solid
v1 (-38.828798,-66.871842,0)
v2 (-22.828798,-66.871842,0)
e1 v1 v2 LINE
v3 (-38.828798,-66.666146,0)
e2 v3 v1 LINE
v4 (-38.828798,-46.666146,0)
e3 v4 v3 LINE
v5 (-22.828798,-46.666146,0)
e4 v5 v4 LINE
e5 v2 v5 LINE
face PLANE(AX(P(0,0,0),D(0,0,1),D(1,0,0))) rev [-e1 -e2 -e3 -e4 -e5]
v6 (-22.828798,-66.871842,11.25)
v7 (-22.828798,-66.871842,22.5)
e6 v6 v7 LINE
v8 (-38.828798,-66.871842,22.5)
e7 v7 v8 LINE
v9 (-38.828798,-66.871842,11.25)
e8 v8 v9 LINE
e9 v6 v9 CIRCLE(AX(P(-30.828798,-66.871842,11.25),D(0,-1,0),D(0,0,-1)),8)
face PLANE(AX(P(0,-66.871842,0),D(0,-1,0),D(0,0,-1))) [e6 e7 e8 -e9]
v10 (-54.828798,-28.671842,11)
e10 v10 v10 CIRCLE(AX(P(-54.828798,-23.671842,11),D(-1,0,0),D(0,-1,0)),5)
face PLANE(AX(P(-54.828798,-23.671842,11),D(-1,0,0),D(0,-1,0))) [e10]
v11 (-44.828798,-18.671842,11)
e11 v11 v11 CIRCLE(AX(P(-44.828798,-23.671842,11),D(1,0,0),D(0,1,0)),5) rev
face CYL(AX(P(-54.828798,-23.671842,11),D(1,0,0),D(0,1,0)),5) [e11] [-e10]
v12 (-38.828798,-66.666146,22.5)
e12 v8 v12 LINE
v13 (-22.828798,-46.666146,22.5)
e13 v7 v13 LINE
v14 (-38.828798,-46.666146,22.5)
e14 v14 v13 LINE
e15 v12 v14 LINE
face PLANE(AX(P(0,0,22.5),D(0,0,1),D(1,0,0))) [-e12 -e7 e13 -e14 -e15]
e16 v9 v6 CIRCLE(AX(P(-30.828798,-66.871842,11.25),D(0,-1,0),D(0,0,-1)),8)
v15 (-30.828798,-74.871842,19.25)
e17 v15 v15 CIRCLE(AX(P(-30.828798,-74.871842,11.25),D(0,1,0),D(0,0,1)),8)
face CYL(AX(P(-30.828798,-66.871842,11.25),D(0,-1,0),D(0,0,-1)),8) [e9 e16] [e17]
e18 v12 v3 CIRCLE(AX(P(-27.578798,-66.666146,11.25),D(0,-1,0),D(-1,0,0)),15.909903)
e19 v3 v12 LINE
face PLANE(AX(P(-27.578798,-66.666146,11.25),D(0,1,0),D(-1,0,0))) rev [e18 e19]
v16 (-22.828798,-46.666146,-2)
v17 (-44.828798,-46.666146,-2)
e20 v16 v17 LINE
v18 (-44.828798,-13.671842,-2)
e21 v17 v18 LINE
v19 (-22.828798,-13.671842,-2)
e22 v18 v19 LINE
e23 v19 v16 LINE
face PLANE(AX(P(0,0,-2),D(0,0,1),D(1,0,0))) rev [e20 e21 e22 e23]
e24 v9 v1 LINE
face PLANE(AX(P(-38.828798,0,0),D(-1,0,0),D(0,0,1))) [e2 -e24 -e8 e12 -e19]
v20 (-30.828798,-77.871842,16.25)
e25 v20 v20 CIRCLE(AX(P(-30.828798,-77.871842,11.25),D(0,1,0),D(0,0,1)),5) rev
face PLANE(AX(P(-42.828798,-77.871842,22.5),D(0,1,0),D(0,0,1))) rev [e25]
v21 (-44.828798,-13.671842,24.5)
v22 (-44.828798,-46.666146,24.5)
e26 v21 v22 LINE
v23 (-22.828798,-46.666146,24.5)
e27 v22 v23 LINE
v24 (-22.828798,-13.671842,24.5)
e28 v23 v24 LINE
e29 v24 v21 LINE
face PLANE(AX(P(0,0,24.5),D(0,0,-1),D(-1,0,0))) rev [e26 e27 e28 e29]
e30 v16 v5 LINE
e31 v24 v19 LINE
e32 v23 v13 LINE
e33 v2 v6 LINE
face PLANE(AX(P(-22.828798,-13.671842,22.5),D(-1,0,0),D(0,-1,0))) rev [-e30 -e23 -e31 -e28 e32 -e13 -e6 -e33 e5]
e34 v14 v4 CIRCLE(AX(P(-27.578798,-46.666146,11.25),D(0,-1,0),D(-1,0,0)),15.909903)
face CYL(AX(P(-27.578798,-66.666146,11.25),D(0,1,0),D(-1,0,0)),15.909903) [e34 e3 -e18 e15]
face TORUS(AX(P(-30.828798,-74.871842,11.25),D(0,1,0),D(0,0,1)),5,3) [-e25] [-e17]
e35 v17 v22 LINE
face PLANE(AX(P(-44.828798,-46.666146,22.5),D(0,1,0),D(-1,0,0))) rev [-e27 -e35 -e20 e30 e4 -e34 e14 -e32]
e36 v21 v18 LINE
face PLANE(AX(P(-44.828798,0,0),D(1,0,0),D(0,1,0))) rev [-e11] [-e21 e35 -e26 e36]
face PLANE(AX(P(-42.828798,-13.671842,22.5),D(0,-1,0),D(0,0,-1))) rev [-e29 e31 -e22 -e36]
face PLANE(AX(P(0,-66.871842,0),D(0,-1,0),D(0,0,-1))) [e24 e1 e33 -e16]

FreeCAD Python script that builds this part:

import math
import FreeCAD as App
import Part
import Sketcher

V = App.Vector


def edges_at(feature, points):
    """Names of the edges that pass closest to the given points."""
    edges = feature.Shape.Edges
    near = lambda p: min(range(len(edges)), key=lambda i: edges[i].distToShape(Part.Vertex(*p))[0])
    return sorted({f"Edge{near(p) + 1}" for p in points})

doc = App.newDocument("Part")
params = doc.addObject("Spreadsheet::Sheet", "Params")
for row, (alias, value) in enumerate([
    ("sketch1_width", "20 mm"),
    ("sketch1_height", "64.2 mm"),
    ("pad1_length", "22.5 mm"),
    ("sketch2_height", "22.5 mm"),
    ("pad2_length", "2 mm"),
    ("sketch3_width", "22 mm"),
    ("pad3_length", "2 mm"),
    ("sketch4_width", "22 mm"),
    ("pad4_length", "2 mm"),
    ("sketch5_height", "22.5 mm"),
    ("pocket1_length", "4 mm"),
    ("sketch6_height", "22.5 mm"),
    ("pad5_length", "20 mm"),
    ("sketch7_radius", "8 mm"),
    ("sketch7_height", "11.25 mm"),
    ("pocket2_length", "11 mm"),
    ("fillet_radius", "3 mm"),
    ("sketch8_diameter", "10 mm"),
    ("pad6_length", "10 mm"),
], start=1):
    params.set(f"A{row}", alias)
    params.set(f"B{row}", "=" + value)
    params.setAlias(f"B{row}", alias)

body = doc.addObject("PartDesign::Body", "Body")

# Sketch on XY plane
sketch1 = doc.addObject("Sketcher::SketchObject", "Sketch")
body.addObject(sketch1)
sketch1.AttachmentSupport = (doc.XY_Plane, [""])
sketch1.MapMode = "FlatFace"
sketch1.addGeometry([
    Part.LineSegment(V(-43, -14, 0), V(-43, -78, 0)),
    Part.LineSegment(V(-43, -78, 0), V(-23, -78, 0)),
    Part.LineSegment(V(-23, -78, 0), V(-23, -14, 0)),
    Part.LineSegment(V(-23, -14, 0), V(-43, -14, 0)),
], False)
sketch1.addConstraint([
    Sketcher.Constraint("Coincident", 0, 2, 1, 1),
    Sketcher.Constraint("Coincident", 1, 2, 2, 1),
    Sketcher.Constraint("Coincident", 2, 2, 3, 1),
    Sketcher.Constraint("Coincident", 3, 2, 0, 1),
    Sketcher.Constraint("Vertical", 0),
    Sketcher.Constraint("Horizontal", 1),
    Sketcher.Constraint("Vertical", 2),
    Sketcher.Constraint("Horizontal", 3),
    Sketcher.Constraint("DistanceX", 1, 1, 1, 2, 20.0),
    Sketcher.Constraint("DistanceY", 0, 2, 0, 1, 64.2),
    Sketcher.Constraint("DistanceX", 0, 2, -1, 1, 42.828798),
    Sketcher.Constraint("DistanceY", 0, 2, -1, 1, 77.871842),
])
sketch1.setExpression("Constraints[8]", "Params.sketch1_width")
sketch1.setExpression("Constraints[9]", "Params.sketch1_height")
pad1 = doc.addObject("PartDesign::Pad", "Pad")
body.addObject(pad1)
pad1.Profile = sketch1
pad1.setExpression("Length", "Params.pad1_length")

# Sketch on YZ plane
sketch2 = doc.addObject("Sketcher::SketchObject", "Sketch001")
body.addObject(sketch2)
sketch2.AttachmentSupport = (doc.YZ_Plane, [""])
sketch2.MapMode = "FlatFace"
sketch2.AttachmentOffset = App.Placement(V(0, 0, -42.828798), App.Rotation())
sketch2.addGeometry([
    Part.LineSegment(V(-14, 0, 0), V(-47, 0, 0)),
    Part.LineSegment(V(-47, 0, 0), V(-47, 22, 0)),
    Part.LineSegment(V(-47, 22, 0), V(-14, 22, 0)),
    Part.LineSegment(V(-14, 22, 0), V(-14, 0, 0)),
], False)
sketch2.addConstraint([
    Sketcher.Constraint("Coincident", 0, 2, 1, 1),
    Sketcher.Constraint("Coincident", 1, 2, 2, 1),
    Sketcher.Constraint("Coincident", 2, 2, 3, 1),
    Sketcher.Constraint("Coincident", 3, 2, 0, 1),
    Sketcher.Constraint("Horizontal", 0),
    Sketcher.Constraint("Vertical", 1),
    Sketcher.Constraint("Horizontal", 2),
    Sketcher.Constraint("Vertical", 3),
    Sketcher.Constraint("PointOnObject", 0, 2, -1),
    Sketcher.Constraint("DistanceY", 1, 1, 1, 2, 22.5),
    Sketcher.Constraint("DistanceX", 0, 2, 0, 1, 32.994304),
    Sketcher.Constraint("DistanceX", 2, 2, -1, 1, 13.671842),
])
sketch2.setExpression("Constraints[9]", "Params.sketch2_height")
pad2 = doc.addObject("PartDesign::Pad", "Pad001")
body.addObject(pad2)
pad2.Profile = sketch2
pad2.setExpression("Length", "Params.pad2_length")
pad2.Reversed = True

# Sketch on XY plane
sketch3 = doc.addObject("Sketcher::SketchObject", "Sketch002")
body.addObject(sketch3)
sketch3.AttachmentSupport = (doc.XY_Plane, [""])
sketch3.MapMode = "FlatFace"
sketch3.addGeometry([
    Part.LineSegment(V(-23, -14, 0), V(-23, -47, 0)),
    Part.LineSegment(V(-23, -47, 0), V(-45, -47, 0)),
    Part.LineSegment(V(-45, -47, 0), V(-45, -14, 0)),
    Part.LineSegment(V(-45, -14, 0), V(-23, -14, 0)),
], False)
sketch3.addConstraint([
    Sketcher.Constraint("Coincident", 0, 2, 1, 1),
    Sketcher.Constraint("Coincident", 1, 2, 2, 1),
    Sketcher.Constraint("Coincident", 2, 2, 3, 1),
    Sketcher.Constraint("Coincident", 3, 2, 0, 1),
    Sketcher.Constraint("Vertical", 0),
    Sketcher.Constraint("Horizontal", 1),
    Sketcher.Constraint("Vertical", 2),
    Sketcher.Constraint("Horizontal", 3),
    Sketcher.Constraint("DistanceX", 1, 2, 1, 1, 22.0),
    Sketcher.Constraint("DistanceX", 0, 2, -1, 1, 22.828798),
    Sketcher.Constraint("DistanceY", 0, 2, 0, 1, 32.994304),
    Sketcher.Constraint("DistanceY", 2, 2, -1, 1, 13.671842),
])
sketch3.setExpression("Constraints[8]", "Params.sketch3_width")
pad3 = doc.addObject("PartDesign::Pad", "Pad002")
body.addObject(pad3)
pad3.Profile = sketch3
pad3.setExpression("Length", "Params.pad3_length")
pad3.Reversed = True

# Sketch on XY plane
sketch4 = doc.addObject("Sketcher::SketchObject", "Sketch003")
body.addObject(sketch4)
sketch4.AttachmentSupport = (doc.XY_Plane, [""])
sketch4.MapMode = "FlatFace"
sketch4.AttachmentOffset = App.Placement(V(0, 0, 22.5), App.Rotation())
sketch4.addGeometry([
    Part.LineSegment(V(-45, -14, 0), V(-45, -47, 0)),
    Part.LineSegment(V(-45, -47, 0), V(-23, -47, 0)),
    Part.LineSegment(V(-23, -47, 0), V(-23, -14, 0)),
    Part.LineSegment(V(-23, -14, 0), V(-45, -14, 0)),
], False)
sketch4.addConstraint([
    Sketcher.Constraint("Coincident", 0, 2, 1, 1),
    Sketcher.Constraint("Coincident", 1, 2, 2, 1),
    Sketcher.Constraint("Coincident", 2, 2, 3, 1),
    Sketcher.Constraint("Coincident", 3, 2, 0, 1),
    Sketcher.Constraint("Vertical", 0),
    Sketcher.Constraint("Horizontal", 1),
    Sketcher.Constraint("Vertical", 2),
    Sketcher.Constraint("Horizontal", 3),
    Sketcher.Constraint("DistanceX", 1, 1, 1, 2, 22.0),
    Sketcher.Constraint("DistanceX", 0, 2, -1, 1, 44.828798),
    Sketcher.Constraint("DistanceY", 0, 2, 0, 1, 32.994304),
    Sketcher.Constraint("DistanceY", 2, 2, -1, 1, 13.671842),
])
sketch4.setExpression("Constraints[8]", "Params.sketch4_width")
pad4 = doc.addObject("PartDesign::Pad", "Pad003")
body.addObject(pad4)
pad4.Profile = sketch4
pad4.setExpression("Length", "Params.pad4_length")

# Sketch on YZ plane
sketch5 = doc.addObject("Sketcher::SketchObject", "Sketch004")
body.addObject(sketch5)
sketch5.AttachmentSupport = (doc.YZ_Plane, [""])
sketch5.MapMode = "FlatFace"
sketch5.AttachmentOffset = App.Placement(V(0, 0, -42.828798), App.Rotation())
sketch5.addGeometry([
    Part.LineSegment(V(-47, 0, 0), V(-78, 0, 0)),
    Part.LineSegment(V(-78, 0, 0), V(-78, 22, 0)),
    Part.LineSegment(V(-78, 22, 0), V(-47, 22, 0)),
    Part.LineSegment(V(-47, 22, 0), V(-47, 0, 0)),
], False)
sketch5.addConstraint([
    Sketcher.Constraint("Coincident", 0, 2, 1, 1),
    Sketcher.Constraint("Coincident", 1, 2, 2, 1),
    Sketcher.Constraint("Coincident", 2, 2, 3, 1),
    Sketcher.Constraint("Coincident", 3, 2, 0, 1),
    Sketcher.Constraint("Horizontal", 0),
    Sketcher.Constraint("Vertical", 1),
    Sketcher.Constraint("Horizontal", 2),
    Sketcher.Constraint("Vertical", 3),
    Sketcher.Constraint("PointOnObject", 0, 2, -1),
    Sketcher.Constraint("DistanceY", 1, 1, 1, 2, 22.5),
    Sketcher.Constraint("DistanceX", 0, 2, 0, 1, 31.205696),
    Sketcher.Constraint("DistanceX", 0, 2, -1, 1, 77.871842),
])
sketch5.setExpression("Constraints[9]", "Params.sketch5_height")
pocket1 = doc.addObject("PartDesign::Pocket", "Pocket")
body.addObject(pocket1)
pocket1.Profile = sketch5
pocket1.setExpression("Length", "Params.pocket1_length")
pocket1.Reversed = True

# Sketch on XZ plane
sketch6 = doc.addObject("Sketcher::SketchObject", "Sketch005")
body.addObject(sketch6)
sketch6.AttachmentSupport = (doc.XZ_Plane, [""])
sketch6.MapMode = "FlatFace"
sketch6.AttachmentOffset = App.Placement(V(0, 0, 46.666146), App.Rotation())
sketch6.addGeometry([
    Part.LineSegment(V(-39, 0, 0), V(-39, 22, 0)),
    Part.ArcOfCircle(Part.Circle(V(-28, 11, 0), V(0, 0, 1), 16), math.radians(135), math.radians(225)),
], False)
sketch6.addConstraint([
    Sketcher.Constraint("Coincident", 0, 1, 1, 2),
    Sketcher.Constraint("Coincident", 1, 1, 0, 2),
    Sketcher.Constraint("Vertical", 0),
    Sketcher.Constraint("PointOnObject", 0, 1, -1),
    Sketcher.Constraint("DistanceY", 0, 1, 0, 2, 22.5),
    Sketcher.Constraint("DistanceX", 0, 1, 1, 3, 11.25),
    Sketcher.Constraint("DistanceX", 1, 3, -1, 1, 27.578798),
])
sketch6.setExpression("Constraints[4]", "Params.sketch6_height")
pad5 = doc.addObject("PartDesign::Pad", "Pad004")
body.addObject(pad5)
pad5.Profile = sketch6
pad5.setExpression("Length", "Params.pad5_length")

# Sketch on XZ plane
sketch7 = doc.addObject("Sketcher::SketchObject", "Sketch006")
body.addObject(sketch7)
sketch7.AttachmentSupport = (doc.XZ_Plane, [""])
sketch7.MapMode = "FlatFace"
sketch7.AttachmentOffset = App.Placement(V(0, 0, 77.871842), App.Rotation())
sketch7.addGeometry([
    Part.LineSegment(V(-39, 22, 0), V(-39, 11, 0)),  # 0
    Part.ArcOfCircle(Part.Circle(V(-31, 11, 0), V(0, 0, 1), 8), math.radians(0), math.radians(180)),  # 1
    Part.LineSegment(V(-23, 11, 0), V(-23, 22, 0)),  # 2
    Part.LineSegment(V(-23, 22, 0), V(-39, 22, 0)),  # 3
    Part.LineSegment(V(-39, 11, 0), V(-39, 0, 0)),  # 4
    Part.LineSegment(V(-39, 0, 0), V(-23, 0, 0)),  # 5
    Part.LineSegment(V(-23, 0, 0), V(-23, 11, 0)),  # 6
    Part.ArcOfCircle(Part.Circle(V(-31, 11, 0), V(0, 0, 1), 8), math.radians(180), math.radians(360)),  # 7
], False)
sketch7.addConstraint([
    Sketcher.Constraint("Tangent", 0, 2, 1, 2),
    Sketcher.Constraint("Tangent", 1, 1, 2, 1),
    Sketcher.Constraint("Coincident", 2, 2, 3, 1),
    Sketcher.Constraint("Coincident", 3, 2, 0, 1),
    Sketcher.Constraint("Coincident", 4, 2, 5, 1),
    Sketcher.Constraint("Coincident", 5, 2, 6, 1),
    Sketcher.Constraint("Tangent", 6, 2, 7, 2),
    Sketcher.Constraint("Tangent", 7, 1, 4, 1),
    Sketcher.Constraint("Vertical", 0),
    Sketcher.Constraint("Vertical", 2),
    Sketcher.Constraint("Horizontal", 3),
    Sketcher.Constraint("Vertical", 4),
    Sketcher.Constraint("Horizontal", 5),
    Sketcher.Constraint("Vertical", 6),
    Sketcher.Constraint("Coincident", 7, 3, 1, 3),
    Sketcher.Constraint("Equal", 1, 7),
    Sketcher.Constraint("PointOnObject", 4, 2, -1),
    Sketcher.Constraint("Equal", 2, 4),
    Sketcher.Constraint("Radius", 1, 8.0),
    Sketcher.Constraint("DistanceY", 0, 2, 0, 1, 11.25),
    Sketcher.Constraint("DistanceX", 1, 3, -1, 1, 30.828798),
])
sketch7.setExpression("Constraints[18]", "Params.sketch7_radius")
sketch7.setExpression("Constraints[19]", "Params.sketch7_height")
pocket2 = doc.addObject("PartDesign::Pocket", "Pocket001")
body.addObject(pocket2)
pocket2.Profile = sketch7
pocket2.setExpression("Length", "Params.pocket2_length")
doc.recompute()

fillet = doc.addObject("PartDesign::Fillet", "Fillet")
body.addObject(fillet)
fillet.Base = (pocket2, edges_at(pocket2, [(-22.829, -77.872, 11.25)]))
fillet.setExpression("Radius", "Params.fillet_radius")

# Sketch on YZ plane
sketch8 = doc.addObject("Sketcher::SketchObject", "Sketch007")
body.addObject(sketch8)
sketch8.AttachmentSupport = (doc.YZ_Plane, [""])
sketch8.MapMode = "FlatFace"
sketch8.AttachmentOffset = App.Placement(V(0, 0, -44.828798), App.Rotation())
sketch8.addGeometry(Part.Circle(V(-24, 11, 0), V(0, 0, 1), 5), False)
sketch8.addConstraint([
    Sketcher.Constraint("Diameter", 0, 10.0),
    Sketcher.Constraint("DistanceY", -1, 1, 0, 3, 11.0),
    Sketcher.Constraint("DistanceX", 0, 3, -1, 1, 23.671842),
])
sketch8.setExpression("Constraints[0]", "Params.sketch8_diameter")
pad6 = doc.addObject("PartDesign::Pad", "Pad005")
body.addObject(pad6)
pad6.Profile = sketch8
pad6.setExpression("Length", "Params.pad6_length")
pad6.Reversed = True

doc.recompute()
